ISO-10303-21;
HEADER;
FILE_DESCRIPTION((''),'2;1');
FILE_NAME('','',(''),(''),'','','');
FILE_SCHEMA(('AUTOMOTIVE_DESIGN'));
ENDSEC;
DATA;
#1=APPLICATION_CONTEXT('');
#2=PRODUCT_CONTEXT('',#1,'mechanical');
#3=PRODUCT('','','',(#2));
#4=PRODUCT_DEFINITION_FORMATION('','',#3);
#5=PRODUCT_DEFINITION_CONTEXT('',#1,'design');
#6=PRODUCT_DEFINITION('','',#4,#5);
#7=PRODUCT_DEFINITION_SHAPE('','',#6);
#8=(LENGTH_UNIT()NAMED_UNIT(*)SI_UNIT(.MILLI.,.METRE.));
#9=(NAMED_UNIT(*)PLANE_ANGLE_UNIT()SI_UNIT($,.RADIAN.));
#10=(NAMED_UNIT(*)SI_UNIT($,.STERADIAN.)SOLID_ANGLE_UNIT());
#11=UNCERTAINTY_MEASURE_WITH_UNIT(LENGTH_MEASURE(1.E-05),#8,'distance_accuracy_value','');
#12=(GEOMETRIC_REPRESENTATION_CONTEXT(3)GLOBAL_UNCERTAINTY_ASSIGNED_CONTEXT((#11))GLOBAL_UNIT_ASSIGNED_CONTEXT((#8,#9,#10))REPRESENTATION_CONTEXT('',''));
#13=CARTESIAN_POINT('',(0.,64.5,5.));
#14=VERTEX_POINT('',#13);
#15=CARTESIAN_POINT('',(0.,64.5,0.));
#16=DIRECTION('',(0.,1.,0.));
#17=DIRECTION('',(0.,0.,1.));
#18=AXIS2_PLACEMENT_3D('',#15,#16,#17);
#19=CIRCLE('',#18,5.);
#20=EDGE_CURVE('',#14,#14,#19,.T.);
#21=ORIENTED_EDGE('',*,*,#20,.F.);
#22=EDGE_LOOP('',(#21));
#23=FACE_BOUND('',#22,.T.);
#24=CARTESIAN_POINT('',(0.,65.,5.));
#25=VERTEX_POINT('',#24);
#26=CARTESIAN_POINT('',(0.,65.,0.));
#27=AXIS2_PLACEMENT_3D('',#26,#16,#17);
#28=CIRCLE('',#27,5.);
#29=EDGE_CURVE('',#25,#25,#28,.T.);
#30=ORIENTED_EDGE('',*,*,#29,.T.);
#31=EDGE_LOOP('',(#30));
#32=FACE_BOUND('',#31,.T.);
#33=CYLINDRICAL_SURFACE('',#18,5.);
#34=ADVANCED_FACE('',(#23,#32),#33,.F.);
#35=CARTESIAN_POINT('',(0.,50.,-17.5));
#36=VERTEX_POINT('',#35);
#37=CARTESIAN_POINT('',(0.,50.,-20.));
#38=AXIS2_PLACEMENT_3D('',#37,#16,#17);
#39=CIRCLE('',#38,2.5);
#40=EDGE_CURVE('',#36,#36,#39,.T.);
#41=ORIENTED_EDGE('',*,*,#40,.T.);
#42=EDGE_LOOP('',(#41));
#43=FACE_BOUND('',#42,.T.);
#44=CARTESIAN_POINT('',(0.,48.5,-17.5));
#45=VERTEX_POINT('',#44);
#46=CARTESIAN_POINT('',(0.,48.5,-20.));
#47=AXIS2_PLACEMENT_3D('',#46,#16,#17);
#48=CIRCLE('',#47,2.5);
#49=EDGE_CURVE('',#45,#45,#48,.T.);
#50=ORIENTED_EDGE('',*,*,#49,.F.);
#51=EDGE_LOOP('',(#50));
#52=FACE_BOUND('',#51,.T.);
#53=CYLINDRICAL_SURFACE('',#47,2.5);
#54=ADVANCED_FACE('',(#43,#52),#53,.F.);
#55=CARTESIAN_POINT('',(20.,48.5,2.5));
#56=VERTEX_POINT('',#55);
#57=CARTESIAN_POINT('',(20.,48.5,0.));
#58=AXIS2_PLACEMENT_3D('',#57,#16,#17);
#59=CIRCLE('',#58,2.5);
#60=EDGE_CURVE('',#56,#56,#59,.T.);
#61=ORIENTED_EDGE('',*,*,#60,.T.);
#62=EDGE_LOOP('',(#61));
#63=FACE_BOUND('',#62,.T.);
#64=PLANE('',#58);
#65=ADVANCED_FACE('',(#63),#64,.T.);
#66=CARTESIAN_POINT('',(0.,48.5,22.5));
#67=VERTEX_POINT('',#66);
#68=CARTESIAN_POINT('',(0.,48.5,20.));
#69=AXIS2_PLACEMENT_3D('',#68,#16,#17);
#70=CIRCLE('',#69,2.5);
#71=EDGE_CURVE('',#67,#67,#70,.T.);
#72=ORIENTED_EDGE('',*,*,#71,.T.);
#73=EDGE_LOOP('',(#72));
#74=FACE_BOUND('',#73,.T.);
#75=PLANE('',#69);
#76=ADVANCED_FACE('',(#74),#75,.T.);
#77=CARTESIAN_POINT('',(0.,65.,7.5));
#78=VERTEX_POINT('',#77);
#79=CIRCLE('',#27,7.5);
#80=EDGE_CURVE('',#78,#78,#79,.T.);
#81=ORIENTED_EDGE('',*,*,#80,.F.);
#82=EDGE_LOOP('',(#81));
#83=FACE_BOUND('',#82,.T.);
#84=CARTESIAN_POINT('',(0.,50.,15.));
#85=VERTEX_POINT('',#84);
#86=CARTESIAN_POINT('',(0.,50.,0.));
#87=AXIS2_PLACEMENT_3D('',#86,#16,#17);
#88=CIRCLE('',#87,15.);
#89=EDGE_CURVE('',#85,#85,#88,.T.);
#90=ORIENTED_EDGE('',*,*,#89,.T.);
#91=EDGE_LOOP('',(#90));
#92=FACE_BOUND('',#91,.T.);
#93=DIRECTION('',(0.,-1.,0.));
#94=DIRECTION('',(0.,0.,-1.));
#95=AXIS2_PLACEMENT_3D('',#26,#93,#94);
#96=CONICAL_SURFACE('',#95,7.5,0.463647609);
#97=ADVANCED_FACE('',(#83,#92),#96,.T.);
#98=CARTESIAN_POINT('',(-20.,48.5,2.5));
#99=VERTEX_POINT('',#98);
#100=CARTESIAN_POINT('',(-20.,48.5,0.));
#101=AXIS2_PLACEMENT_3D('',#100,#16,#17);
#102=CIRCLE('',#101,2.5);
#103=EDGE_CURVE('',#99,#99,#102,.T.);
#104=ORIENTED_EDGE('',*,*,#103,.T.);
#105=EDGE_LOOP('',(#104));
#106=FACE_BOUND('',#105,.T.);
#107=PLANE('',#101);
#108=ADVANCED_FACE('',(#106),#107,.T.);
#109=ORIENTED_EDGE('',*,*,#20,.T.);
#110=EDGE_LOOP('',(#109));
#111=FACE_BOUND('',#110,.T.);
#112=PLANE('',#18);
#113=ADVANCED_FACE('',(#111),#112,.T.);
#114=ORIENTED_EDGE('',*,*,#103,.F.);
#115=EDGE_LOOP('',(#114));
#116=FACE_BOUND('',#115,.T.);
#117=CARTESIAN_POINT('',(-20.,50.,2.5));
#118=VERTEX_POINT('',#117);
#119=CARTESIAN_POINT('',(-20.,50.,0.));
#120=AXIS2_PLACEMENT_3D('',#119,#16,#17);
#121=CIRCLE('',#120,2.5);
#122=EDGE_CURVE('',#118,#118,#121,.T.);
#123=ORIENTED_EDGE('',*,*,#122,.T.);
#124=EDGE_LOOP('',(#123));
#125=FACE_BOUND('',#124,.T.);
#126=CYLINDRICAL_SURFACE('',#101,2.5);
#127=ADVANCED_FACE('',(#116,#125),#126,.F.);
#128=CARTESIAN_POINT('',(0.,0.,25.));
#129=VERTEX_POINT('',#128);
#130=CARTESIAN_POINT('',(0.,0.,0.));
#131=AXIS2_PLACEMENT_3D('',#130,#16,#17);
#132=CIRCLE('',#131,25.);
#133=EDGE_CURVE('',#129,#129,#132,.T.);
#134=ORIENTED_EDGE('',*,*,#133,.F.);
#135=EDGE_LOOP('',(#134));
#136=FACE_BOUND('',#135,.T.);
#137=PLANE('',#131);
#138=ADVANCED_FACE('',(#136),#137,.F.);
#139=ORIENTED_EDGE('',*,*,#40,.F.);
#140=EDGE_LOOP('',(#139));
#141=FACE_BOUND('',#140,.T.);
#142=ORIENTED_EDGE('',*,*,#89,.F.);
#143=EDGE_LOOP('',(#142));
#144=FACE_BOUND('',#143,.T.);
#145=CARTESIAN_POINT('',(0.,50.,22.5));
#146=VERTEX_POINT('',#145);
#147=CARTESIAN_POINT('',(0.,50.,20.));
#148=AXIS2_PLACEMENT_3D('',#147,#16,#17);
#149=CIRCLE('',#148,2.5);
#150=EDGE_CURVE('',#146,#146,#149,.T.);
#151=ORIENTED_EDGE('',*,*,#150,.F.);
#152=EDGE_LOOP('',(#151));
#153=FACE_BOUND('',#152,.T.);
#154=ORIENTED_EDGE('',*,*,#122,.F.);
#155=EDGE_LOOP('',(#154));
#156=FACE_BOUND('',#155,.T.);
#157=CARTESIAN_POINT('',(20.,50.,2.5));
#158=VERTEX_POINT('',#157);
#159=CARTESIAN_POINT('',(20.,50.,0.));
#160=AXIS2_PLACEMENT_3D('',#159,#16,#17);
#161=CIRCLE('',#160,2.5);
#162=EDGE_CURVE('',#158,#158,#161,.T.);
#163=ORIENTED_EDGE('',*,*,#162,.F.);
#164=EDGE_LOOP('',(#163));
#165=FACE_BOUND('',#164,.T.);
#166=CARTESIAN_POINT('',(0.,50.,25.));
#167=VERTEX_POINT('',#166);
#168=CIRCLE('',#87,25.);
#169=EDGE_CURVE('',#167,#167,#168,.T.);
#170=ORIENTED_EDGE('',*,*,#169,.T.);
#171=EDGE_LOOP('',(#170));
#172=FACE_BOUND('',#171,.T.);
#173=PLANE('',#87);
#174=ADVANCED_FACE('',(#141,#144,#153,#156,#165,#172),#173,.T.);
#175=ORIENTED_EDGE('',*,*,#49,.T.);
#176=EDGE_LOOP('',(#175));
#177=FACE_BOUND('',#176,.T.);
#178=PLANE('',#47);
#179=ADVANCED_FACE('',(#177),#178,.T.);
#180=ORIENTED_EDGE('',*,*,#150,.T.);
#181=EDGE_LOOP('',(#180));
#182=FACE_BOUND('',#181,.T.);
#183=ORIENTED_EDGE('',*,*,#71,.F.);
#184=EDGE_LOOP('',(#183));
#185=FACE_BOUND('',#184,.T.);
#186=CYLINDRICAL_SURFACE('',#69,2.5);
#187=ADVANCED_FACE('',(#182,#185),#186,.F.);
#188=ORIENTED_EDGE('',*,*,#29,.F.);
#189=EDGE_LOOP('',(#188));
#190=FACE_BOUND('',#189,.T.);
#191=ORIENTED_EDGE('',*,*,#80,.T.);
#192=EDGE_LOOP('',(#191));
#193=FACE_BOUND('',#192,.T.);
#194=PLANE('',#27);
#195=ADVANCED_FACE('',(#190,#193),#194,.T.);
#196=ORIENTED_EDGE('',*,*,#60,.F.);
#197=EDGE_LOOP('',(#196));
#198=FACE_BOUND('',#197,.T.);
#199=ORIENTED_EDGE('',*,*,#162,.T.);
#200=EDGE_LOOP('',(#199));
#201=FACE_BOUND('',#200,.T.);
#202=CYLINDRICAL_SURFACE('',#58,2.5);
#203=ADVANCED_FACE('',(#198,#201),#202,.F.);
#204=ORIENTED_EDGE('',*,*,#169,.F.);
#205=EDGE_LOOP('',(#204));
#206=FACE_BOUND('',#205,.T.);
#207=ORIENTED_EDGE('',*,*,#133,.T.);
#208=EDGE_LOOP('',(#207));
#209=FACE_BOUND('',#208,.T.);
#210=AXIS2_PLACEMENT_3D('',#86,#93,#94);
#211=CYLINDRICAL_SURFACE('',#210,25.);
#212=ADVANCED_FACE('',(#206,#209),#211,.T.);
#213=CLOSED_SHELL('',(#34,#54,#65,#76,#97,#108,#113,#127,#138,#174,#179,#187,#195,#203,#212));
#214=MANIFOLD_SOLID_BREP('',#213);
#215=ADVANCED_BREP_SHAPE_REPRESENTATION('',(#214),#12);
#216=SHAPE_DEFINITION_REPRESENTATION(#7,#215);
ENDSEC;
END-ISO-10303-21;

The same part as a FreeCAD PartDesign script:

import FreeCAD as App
import Part
import Sketcher
from FreeCAD import Vector

doc = App.newDocument("Part")
body = doc.addObject("PartDesign::Body", "Body")

sketch1 = doc.addObject("Sketcher::SketchObject", "Sketch")
body.addObject(sketch1)
sketch1.AttachmentSupport = (doc.XZ_Plane, [""])
sketch1.MapMode = "FlatFace"
sketch1.addGeometry(Part.Circle(Vector(0, 0, 0), Vector(0, 0, 1), 25), False)
sketch1.addConstraint([
    Sketcher.Constraint("Coincident", 0, 3, -1, 1),
    Sketcher.Constraint("Diameter", 0, 50.0),
])
pad1 = doc.addObject("PartDesign::Pad", "Pad")
body.addObject(pad1)
pad1.Profile = sketch1
pad1.Length = 50
pad1.Reversed = True

sketch2 = doc.addObject("Sketcher::SketchObject", "Sketch001")
body.addObject(sketch2)
sketch2.AttachmentSupport = (doc.XZ_Plane, [""])
sketch2.MapMode = "FlatFace"
sketch2.AttachmentOffset = App.Placement(Vector(0, 0, -65), App.Rotation())
sketch2.addGeometry(Part.Circle(Vector(0, 0, 0), Vector(0, 0, 1), 7.5), False)
sketch2.addConstraint([
    Sketcher.Constraint("Coincident", 0, 3, -1, 1),
    Sketcher.Constraint("Diameter", 0, 15.0),
])

sketch3 = doc.addObject("Sketcher::SketchObject", "Sketch002")
body.addObject(sketch3)
sketch3.AttachmentSupport = (doc.XZ_Plane, [""])
sketch3.MapMode = "FlatFace"
sketch3.AttachmentOffset = App.Placement(Vector(0, 0, -50), App.Rotation())
sketch3.addGeometry(Part.Circle(Vector(0, 0, 0), Vector(0, 0, 1), 15), False)
sketch3.addConstraint([
    Sketcher.Constraint("Coincident", 0, 3, -1, 1),
    Sketcher.Constraint("Diameter", 0, 30.0),
])

additiveloft = doc.addObject("PartDesign::AdditiveLoft", "AdditiveLoft")
body.addObject(additiveloft)
additiveloft.Profile = sketch2
additiveloft.Sections = [sketch3]

sketch4 = doc.addObject("Sketcher::SketchObject", "Sketch003")
body.addObject(sketch4)
sketch4.AttachmentSupport = (doc.XZ_Plane, [""])
sketch4.MapMode = "FlatFace"
sketch4.AttachmentOffset = App.Placement(Vector(0, 0, -65), App.Rotation())
sketch4.addGeometry(Part.Circle(Vector(0, 0, 0), Vector(0, 0, 1), 5), False)
sketch4.addConstraint([
    Sketcher.Constraint("Coincident", 0, 3, -1, 1),
    Sketcher.Constraint("Diameter", 0, 10.0),
])
pocket1 = doc.addObject("PartDesign::Pocket", "Pocket")
body.addObject(pocket1)
pocket1.Profile = sketch4
pocket1.Length = 0.5
pocket1.Reversed = True

sketch5 = doc.addObject("Sketcher::SketchObject", "Sketch004")
body.addObject(sketch5)
sketch5.AttachmentSupport = (doc.XZ_Plane, [""])
sketch5.MapMode = "FlatFace"
sketch5.AttachmentOffset = App.Placement(Vector(0, 0, -50), App.Rotation())
sketch5.addGeometry([
    Part.Circle(Vector(-20, 0, 0), Vector(0, 0, 1), 2.5),
    Part.Circle(Vector(0, -20, 0), Vector(0, 0, 1), 2.5),
    Part.Circle(Vector(20, 0, 0), Vector(0, 0, 1), 2.5),
    Part.Circle(Vector(0, 20, 0), Vector(0, 0, 1), 2.5),
], False)
sketch5.addConstraint([
    Sketcher.Constraint("Equal", 0, 1),
    Sketcher.Constraint("Equal", 1, 2),
    Sketcher.Constraint("Equal", 2, 3),
    Sketcher.Constraint("Symmetric", 0, 3, 2, 3, -1, 1),
    Sketcher.Constraint("Symmetric", 1, 3, 3, 3, -1, 1),
    Sketcher.Constraint("PointOnObject", 0, 3, -1),
    Sketcher.Constraint("PointOnObject", 1, 3, -2),
    Sketcher.Constraint("Diameter", 0, 5.0),
    Sketcher.Constraint("DistanceX", 0, 3, -1, 1, 20.0),
    Sketcher.Constraint("DistanceY", 1, 3, -1, 1, 20.0),
])
pocket2 = doc.addObject("PartDesign::Pocket", "Pocket001")
body.addObject(pocket2)
pocket2.Profile = sketch5
pocket2.Length = 1.5
pocket2.Reversed = True

doc.recompute()
